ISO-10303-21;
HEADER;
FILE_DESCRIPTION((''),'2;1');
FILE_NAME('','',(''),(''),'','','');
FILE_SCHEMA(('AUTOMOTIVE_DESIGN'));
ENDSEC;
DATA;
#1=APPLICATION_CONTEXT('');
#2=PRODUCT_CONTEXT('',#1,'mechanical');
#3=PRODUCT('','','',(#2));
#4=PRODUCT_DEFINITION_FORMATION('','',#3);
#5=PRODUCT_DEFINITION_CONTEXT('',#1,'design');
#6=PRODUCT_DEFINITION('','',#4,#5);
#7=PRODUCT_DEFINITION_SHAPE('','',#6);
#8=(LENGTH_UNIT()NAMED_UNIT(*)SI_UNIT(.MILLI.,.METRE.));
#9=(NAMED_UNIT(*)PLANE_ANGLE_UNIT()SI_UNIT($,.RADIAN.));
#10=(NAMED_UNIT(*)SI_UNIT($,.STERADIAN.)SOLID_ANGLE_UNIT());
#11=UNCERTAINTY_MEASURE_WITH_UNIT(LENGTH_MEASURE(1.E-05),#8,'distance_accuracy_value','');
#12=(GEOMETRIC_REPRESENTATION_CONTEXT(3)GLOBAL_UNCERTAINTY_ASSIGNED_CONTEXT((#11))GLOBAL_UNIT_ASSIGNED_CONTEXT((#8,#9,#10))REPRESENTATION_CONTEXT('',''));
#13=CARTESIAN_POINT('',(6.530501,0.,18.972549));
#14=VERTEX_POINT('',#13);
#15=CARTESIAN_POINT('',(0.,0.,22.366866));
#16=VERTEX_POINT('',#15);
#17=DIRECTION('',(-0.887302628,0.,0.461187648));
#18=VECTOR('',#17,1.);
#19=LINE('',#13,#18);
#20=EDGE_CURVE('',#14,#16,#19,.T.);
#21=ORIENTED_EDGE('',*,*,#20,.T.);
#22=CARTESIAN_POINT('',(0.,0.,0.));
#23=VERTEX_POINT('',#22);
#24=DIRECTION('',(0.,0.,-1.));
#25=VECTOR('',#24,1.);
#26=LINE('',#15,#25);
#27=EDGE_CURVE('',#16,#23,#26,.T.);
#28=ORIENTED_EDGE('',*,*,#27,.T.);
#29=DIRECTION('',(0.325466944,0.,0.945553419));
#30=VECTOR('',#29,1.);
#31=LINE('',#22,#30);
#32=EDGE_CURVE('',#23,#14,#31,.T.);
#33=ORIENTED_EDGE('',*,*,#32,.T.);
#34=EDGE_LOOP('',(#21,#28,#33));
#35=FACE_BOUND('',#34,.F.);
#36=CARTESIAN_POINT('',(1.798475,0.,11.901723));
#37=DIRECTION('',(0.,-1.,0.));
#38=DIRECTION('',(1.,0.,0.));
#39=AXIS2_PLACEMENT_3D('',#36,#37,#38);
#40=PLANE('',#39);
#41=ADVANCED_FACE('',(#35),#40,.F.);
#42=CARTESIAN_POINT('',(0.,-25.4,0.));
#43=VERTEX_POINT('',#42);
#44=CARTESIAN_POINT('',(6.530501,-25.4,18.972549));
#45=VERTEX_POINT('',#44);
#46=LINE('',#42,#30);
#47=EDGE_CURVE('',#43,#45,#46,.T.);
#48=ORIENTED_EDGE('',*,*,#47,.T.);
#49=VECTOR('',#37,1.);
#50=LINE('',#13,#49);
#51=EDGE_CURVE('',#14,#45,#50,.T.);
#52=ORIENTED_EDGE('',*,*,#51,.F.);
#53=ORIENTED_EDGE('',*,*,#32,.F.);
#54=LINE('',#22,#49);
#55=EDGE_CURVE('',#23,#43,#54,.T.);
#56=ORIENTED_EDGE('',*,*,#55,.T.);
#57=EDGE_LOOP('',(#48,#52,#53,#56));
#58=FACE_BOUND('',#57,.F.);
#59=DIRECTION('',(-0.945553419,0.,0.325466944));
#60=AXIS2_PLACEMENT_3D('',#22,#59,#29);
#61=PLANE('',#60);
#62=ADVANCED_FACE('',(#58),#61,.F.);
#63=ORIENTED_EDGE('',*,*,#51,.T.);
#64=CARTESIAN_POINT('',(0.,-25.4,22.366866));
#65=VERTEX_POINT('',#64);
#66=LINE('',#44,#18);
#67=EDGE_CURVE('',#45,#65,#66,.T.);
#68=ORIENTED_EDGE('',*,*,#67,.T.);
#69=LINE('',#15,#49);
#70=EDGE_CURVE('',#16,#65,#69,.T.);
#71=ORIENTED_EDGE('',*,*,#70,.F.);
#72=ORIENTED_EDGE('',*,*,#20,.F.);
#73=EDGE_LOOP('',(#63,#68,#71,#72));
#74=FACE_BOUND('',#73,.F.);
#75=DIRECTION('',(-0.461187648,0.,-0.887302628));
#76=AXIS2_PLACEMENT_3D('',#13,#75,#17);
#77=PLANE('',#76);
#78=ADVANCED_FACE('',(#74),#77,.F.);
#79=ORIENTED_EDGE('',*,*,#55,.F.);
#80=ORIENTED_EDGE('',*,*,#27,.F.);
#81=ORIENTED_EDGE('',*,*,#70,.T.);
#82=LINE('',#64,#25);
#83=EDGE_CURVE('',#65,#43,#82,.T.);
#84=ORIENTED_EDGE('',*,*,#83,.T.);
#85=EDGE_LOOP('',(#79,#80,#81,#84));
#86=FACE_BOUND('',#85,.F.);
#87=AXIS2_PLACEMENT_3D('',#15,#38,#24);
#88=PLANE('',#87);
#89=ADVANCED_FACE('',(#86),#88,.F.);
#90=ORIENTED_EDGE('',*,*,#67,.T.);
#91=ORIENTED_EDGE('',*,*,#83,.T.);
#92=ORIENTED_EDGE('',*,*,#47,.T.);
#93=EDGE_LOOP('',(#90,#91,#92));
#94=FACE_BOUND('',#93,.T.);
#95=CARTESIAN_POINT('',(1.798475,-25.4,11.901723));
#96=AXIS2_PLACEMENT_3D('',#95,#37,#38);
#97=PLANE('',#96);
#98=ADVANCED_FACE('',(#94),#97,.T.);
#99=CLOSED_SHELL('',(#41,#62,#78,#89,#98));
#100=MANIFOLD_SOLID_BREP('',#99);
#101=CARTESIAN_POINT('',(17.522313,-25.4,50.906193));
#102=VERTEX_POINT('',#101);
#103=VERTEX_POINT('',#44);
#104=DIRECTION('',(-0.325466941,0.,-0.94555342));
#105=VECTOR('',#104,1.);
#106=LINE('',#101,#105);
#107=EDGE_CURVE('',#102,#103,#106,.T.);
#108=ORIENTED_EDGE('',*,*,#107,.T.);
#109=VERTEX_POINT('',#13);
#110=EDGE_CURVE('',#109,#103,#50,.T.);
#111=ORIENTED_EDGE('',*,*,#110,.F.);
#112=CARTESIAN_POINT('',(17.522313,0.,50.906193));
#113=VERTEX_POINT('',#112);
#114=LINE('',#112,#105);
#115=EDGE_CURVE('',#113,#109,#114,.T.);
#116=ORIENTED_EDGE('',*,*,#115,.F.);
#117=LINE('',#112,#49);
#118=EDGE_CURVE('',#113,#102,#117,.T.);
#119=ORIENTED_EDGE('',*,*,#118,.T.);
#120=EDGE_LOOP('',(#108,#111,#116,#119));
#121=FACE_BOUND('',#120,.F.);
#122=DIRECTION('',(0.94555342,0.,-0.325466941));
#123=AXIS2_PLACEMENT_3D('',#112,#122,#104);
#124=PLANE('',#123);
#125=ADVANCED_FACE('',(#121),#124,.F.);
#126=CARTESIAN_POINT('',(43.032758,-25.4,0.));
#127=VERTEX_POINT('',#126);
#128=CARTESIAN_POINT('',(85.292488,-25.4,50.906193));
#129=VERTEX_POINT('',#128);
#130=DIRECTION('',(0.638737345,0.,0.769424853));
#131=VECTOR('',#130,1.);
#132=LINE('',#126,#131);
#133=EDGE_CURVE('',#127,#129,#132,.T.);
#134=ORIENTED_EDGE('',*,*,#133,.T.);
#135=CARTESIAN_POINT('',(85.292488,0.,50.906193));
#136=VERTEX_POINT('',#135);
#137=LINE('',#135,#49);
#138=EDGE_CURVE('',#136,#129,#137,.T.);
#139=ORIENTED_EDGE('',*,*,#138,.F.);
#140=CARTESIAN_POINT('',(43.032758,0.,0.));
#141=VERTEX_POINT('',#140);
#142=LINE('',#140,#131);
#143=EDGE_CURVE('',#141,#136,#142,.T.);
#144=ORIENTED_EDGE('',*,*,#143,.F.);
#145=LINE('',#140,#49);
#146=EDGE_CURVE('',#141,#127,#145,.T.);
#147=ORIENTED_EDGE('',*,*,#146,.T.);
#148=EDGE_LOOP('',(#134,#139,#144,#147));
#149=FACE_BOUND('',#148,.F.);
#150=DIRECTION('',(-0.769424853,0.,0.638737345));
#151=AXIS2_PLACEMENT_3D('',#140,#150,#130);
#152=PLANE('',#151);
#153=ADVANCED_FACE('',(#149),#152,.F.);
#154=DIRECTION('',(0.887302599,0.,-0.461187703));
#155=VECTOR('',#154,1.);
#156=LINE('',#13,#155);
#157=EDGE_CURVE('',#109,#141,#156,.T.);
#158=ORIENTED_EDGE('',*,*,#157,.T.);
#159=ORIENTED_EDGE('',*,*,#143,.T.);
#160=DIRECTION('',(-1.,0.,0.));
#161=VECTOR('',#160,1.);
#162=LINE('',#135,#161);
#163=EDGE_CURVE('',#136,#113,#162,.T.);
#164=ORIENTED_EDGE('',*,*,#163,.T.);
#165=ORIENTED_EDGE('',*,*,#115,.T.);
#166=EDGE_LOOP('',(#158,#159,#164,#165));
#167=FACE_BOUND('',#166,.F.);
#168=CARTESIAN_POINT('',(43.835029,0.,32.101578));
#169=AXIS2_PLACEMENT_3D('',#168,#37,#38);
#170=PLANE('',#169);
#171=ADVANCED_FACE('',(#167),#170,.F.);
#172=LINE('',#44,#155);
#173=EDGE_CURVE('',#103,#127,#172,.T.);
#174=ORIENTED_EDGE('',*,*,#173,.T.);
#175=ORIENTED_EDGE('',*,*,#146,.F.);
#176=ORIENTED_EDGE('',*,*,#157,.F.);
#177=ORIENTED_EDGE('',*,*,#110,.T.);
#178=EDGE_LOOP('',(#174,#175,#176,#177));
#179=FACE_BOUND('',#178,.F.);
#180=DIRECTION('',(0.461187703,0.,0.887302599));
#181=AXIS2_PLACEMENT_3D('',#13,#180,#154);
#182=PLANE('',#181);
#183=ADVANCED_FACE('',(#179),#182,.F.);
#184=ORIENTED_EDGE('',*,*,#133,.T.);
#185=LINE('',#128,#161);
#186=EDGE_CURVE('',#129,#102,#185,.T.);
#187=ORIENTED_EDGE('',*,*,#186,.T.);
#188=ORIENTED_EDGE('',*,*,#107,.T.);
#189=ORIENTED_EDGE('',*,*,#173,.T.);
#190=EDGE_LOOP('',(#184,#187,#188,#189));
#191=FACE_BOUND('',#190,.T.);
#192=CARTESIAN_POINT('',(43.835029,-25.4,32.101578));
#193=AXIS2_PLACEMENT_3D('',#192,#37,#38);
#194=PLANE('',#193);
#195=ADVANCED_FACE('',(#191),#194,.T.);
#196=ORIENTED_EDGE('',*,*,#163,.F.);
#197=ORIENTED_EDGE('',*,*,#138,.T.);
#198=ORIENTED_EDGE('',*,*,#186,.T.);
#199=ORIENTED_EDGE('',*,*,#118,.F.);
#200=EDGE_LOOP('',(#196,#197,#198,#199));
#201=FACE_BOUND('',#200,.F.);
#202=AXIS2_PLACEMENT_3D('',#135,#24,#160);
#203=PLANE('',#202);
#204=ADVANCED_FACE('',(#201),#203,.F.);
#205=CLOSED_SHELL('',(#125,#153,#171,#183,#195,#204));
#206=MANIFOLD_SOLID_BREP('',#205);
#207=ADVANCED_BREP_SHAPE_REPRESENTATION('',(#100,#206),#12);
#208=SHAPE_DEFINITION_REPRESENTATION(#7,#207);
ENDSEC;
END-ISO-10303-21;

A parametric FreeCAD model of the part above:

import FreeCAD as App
import Part
import Sketcher
Q = App.Units.Quantity

doc = App.newDocument("Part")
body = doc.addObject("PartDesign::Body", "Body")
body.AllowCompound = True

sketch1 = body.newObject("Sketcher::SketchObject", "Sketch")
sketch1.AttachmentSupport = (doc.getObject("XZ_Plane"), [""])
sketch1.MapMode = "FlatFace"
sketch1.addGeometry([
    Part.LineSegment(App.Vector(0, 22.366866, 0), App.Vector(0, 0, 0)),
    Part.LineSegment(App.Vector(0, 0, 0), App.Vector(6.530501, 18.972549, 0)),
    Part.LineSegment(App.Vector(6.530501, 18.972549, 0), App.Vector(0, 22.366866, 0)),
    Part.LineSegment(App.Vector(17.522313, 50.906193, 0), App.Vector(6.530501, 18.972549, 0)),
    Part.LineSegment(App.Vector(6.530501, 18.972549, 0), App.Vector(43.032758, 0, 0)),
    Part.LineSegment(App.Vector(43.032758, 0, 0), App.Vector(85.292488, 50.906193, 0)),
    Part.LineSegment(App.Vector(85.292488, 50.906193, 0), App.Vector(17.522313, 50.906193, 0)),
], False)
sketch1.addConstraint([
    Sketcher.Constraint("Coincident", 0, 2, 1, 1),
    Sketcher.Constraint("Coincident", 1, 2, 2, 1),
    Sketcher.Constraint("Coincident", 2, 2, 0, 1),
    Sketcher.Constraint("Coincident", 3, 2, 4, 1),
    Sketcher.Constraint("Coincident", 4, 2, 5, 1),
    Sketcher.Constraint("Coincident", 5, 2, 6, 1),
    Sketcher.Constraint("Coincident", 6, 2, 3, 1),
    Sketcher.Constraint("Vertical", 0),
    Sketcher.Constraint("Horizontal", 6),
    Sketcher.Constraint("Coincident", 0, 2, -1, 1),
    Sketcher.Constraint("Coincident", 3, 2, 1, 2),
    Sketcher.Constraint("PointOnObject", 4, 2, -1),
    Sketcher.Constraint("Parallel", 1, 3),
    Sketcher.Constraint("Parallel", 2, 4),
    Sketcher.Constraint("DistanceX", -1, 1, 1, 2, Q("6.530501 mm")),
    Sketcher.Constraint("Distance", 1, Q("20.065021 mm")),
    Sketcher.Constraint("DistanceX", 6, 2, 6, 1, Q("67.770175 mm")),
    Sketcher.Constraint("DistanceY", 0, 2, 0, 1, Q("22.366866 mm")),
    Sketcher.Constraint("DistanceX", -1, 1, 5, 2, Q("85.292488 mm")),
])
pad1 = body.newObject("PartDesign::Pad", "Pad")
pad1.Profile = sketch1
pad1.Length = Q("1 in")

doc.recompute()
